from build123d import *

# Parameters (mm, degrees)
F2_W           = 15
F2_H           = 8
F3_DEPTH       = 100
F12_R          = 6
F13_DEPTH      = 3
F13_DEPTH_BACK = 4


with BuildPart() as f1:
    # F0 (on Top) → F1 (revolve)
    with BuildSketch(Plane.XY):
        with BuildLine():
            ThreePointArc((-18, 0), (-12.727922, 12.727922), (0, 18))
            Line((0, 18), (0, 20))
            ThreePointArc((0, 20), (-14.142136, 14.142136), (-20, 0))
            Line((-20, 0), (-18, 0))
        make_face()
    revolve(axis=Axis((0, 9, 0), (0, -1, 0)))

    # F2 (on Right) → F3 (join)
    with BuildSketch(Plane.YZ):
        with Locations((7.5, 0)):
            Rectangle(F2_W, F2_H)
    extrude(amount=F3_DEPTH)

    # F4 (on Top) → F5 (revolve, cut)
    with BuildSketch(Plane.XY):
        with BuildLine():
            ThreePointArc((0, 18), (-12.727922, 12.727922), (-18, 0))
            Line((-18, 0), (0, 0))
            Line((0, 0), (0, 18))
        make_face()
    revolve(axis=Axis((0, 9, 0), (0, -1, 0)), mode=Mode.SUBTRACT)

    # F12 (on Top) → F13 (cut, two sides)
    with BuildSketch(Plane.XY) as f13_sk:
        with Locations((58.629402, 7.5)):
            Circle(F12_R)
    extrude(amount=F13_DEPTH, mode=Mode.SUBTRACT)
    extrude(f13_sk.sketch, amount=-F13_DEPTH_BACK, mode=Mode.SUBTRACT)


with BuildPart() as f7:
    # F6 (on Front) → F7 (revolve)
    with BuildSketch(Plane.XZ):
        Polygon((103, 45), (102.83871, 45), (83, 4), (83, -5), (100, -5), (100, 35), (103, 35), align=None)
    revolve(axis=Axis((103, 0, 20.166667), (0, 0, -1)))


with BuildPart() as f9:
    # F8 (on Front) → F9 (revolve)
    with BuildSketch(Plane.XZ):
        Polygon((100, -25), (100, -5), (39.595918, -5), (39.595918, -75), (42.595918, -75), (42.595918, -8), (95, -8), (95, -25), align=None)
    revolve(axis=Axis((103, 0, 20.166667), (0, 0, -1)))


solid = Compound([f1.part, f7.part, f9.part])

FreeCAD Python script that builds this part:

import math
import FreeCAD as App
import Part
import Sketcher

V = App.Vector
Q = App.Units.Quantity

doc = App.newDocument("Part")
body = doc.addObject("PartDesign::Body", "Body")

# Sketch on XY plane
sketch1 = body.newObject("Sketcher::SketchObject", "Sketch")
sketch1.AttachmentSupport = (doc.getObject("XY_Plane"), [""])
sketch1.MapMode = "FlatFace"
sketch1.addGeometry(Part.ArcOfCircle(Part.Circle(V(0, 0, 0), V(0, 0, 1), 18), math.radians(90), math.radians(180)), False)
sketch1.addGeometry(Part.LineSegment(V(0, 18, 0), V(0, 20, 0)), False)
sketch1.addGeometry(Part.ArcOfCircle(Part.Circle(V(0, 0, 0), V(0, 0, 1), 20), math.radians(90), math.radians(180)), False)
sketch1.addGeometry(Part.LineSegment(V(-20, 0, 0), V(-18, 0, 0)), False)
sketch1.addConstraint(Sketcher.Constraint("Coincident", 0, 1, 1, 1))
sketch1.addConstraint(Sketcher.Constraint("Coincident", 1, 2, 2, 1))
sketch1.addConstraint(Sketcher.Constraint("Coincident", 2, 2, 3, 1))
sketch1.addConstraint(Sketcher.Constraint("Coincident", 3, 2, 0, 2))
sketch1.addConstraint(Sketcher.Constraint("Vertical", 1))
sketch1.addConstraint(Sketcher.Constraint("Horizontal", 3))
sketch1.addConstraint(Sketcher.Constraint("Coincident", 0, 3, -1, 1))
sketch1.addConstraint(Sketcher.Constraint("Coincident", 2, 3, -1, 1))
sketch1.addConstraint(Sketcher.Constraint("PointOnObject", 0, 1, -2))
sketch1.addConstraint(Sketcher.Constraint("PointOnObject", 2, 2, -1))
sketch1.addConstraint(Sketcher.Constraint("Radius", 0, Q("18 mm")))
sketch1.addConstraint(Sketcher.Constraint("Radius", 2, Q("19.999999 mm")))
revolution = body.newObject("PartDesign::Revolution", "Revolution")
revolution.Profile = sketch1
revolution.ReferenceAxis = (sketch1, ["V_Axis"])
revolution.Angle = 360

# Sketch on YZ plane
sketch2 = body.newObject("Sketcher::SketchObject", "Sketch001")
sketch2.AttachmentSupport = (doc.getObject("YZ_Plane"), [""])
sketch2.MapMode = "FlatFace"
sketch2.addGeometry(Part.LineSegment(V(0, 4, 0), V(0, -4, 0)), False)
sketch2.addGeometry(Part.LineSegment(V(0, -4, 0), V(15, -4, 0)), False)
sketch2.addGeometry(Part.LineSegment(V(15, -4, 0), V(15, 4, 0)), False)
sketch2.addGeometry(Part.LineSegment(V(15, 4, 0), V(0, 4, 0)), False)
sketch2.addConstraint(Sketcher.Constraint("Coincident", 0, 2, 1, 1))
sketch2.addConstraint(Sketcher.Constraint("Coincident", 1, 2, 2, 1))
sketch2.addConstraint(Sketcher.Constraint("Coincident", 2, 2, 3, 1))
sketch2.addConstraint(Sketcher.Constraint("Coincident", 3, 2, 0, 1))
sketch2.addConstraint(Sketcher.Constraint("Vertical", 0))
sketch2.addConstraint(Sketcher.Constraint("Horizontal", 1))
sketch2.addConstraint(Sketcher.Constraint("Vertical", 2))
sketch2.addConstraint(Sketcher.Constraint("Horizontal", 3))
sketch2.addConstraint(Sketcher.Constraint("Symmetric", 0, 2, 3, 2, -1, 1))
sketch2.addConstraint(Sketcher.Constraint("DistanceX", 1, 1, 1, 2, Q("15 mm")))
sketch2.addConstraint(Sketcher.Constraint("DistanceY", 0, 2, 0, 1, Q("8 mm")))
pad1 = body.newObject("PartDesign::Pad", "Pad")
pad1.Profile = sketch2
pad1.Length = 100

# Sketch on XY plane
sketch3 = body.newObject("Sketcher::SketchObject", "Sketch002")
sketch3.AttachmentSupport = (doc.getObject("XY_Plane"), [""])
sketch3.MapMode = "FlatFace"
sketch3.addGeometry(Part.ArcOfCircle(Part.Circle(V(0, 0, 0), V(0, 0, 1), 18), math.radians(90), math.radians(180)), False)
sketch3.addGeometry(Part.LineSegment(V(-18, 0, 0), V(0, 0, 0)), False)
sketch3.addGeometry(Part.LineSegment(V(0, 0, 0), V(0, 18, 0)), False)
sketch3.addConstraint(Sketcher.Constraint("Coincident", 0, 2, 1, 1))
sketch3.addConstraint(Sketcher.Constraint("Coincident", 1, 2, 2, 1))
sketch3.addConstraint(Sketcher.Constraint("Coincident", 2, 2, 0, 1))
sketch3.addConstraint(Sketcher.Constraint("Horizontal", 1))
sketch3.addConstraint(Sketcher.Constraint("Vertical", 2))
sketch3.addConstraint(Sketcher.Constraint("Coincident", 0, 3, -1, 1))
sketch3.addConstraint(Sketcher.Constraint("Coincident", 1, 2, -1, 1))
sketch3.addConstraint(Sketcher.Constraint("Radius", 0, Q("18 mm")))
groove = body.newObject("PartDesign::Groove", "Groove")
groove.Profile = sketch3
groove.ReferenceAxis = (sketch3, ["V_Axis"])
groove.Angle = 360

# Sketch on XY plane
sketch4 = body.newObject("Sketcher::SketchObject", "Sketch003")
sketch4.AttachmentSupport = (doc.getObject("XY_Plane"), [""])
sketch4.MapMode = "FlatFace"
sketch4.addGeometry(Part.Circle(V(59, 8, 0), V(0, 0, 1), 6), False)
sketch4.addConstraint(Sketcher.Constraint("Diameter", 0, Q("12 mm")))
sketch4.addConstraint(Sketcher.Constraint("DistanceY", -1, 1, 0, 3, Q("7.5 mm")))
sketch4.addConstraint(Sketcher.Constraint("DistanceX", -1, 1, 0, 3, Q("58.629402 mm")))
pocket1 = body.newObject("PartDesign::Pocket", "Pocket")
pocket1.Profile = sketch4
pocket1.Type = "TwoLengths"
pocket1.Length = 3
pocket1.Length2 = 4
pocket1.Reversed = True
body2 = doc.addObject("PartDesign::Body", "Body001")

# Sketch on XZ plane
sketch5 = body2.newObject("Sketcher::SketchObject", "Sketch004")
sketch5.AttachmentSupport = (doc.getObject("XZ_Plane001"), [""])
sketch5.MapMode = "FlatFace"
sketch5.addGeometry(Part.LineSegment(V(103, 45, 0), V(102.84, 45, 0)), False)
sketch5.addGeometry(Part.LineSegment(V(102.84, 45, 0), V(83, 4, 0)), False)
sketch5.addGeometry(Part.LineSegment(V(83, 4, 0), V(83, -5, 0)), False)
sketch5.addGeometry(Part.LineSegment(V(83, -5, 0), V(100, -5, 0)), False)
sketch5.addGeometry(Part.LineSegment(V(100, -5, 0), V(100, 35, 0)), False)
sketch5.addGeometry(Part.LineSegment(V(100, 35, 0), V(103, 35, 0)), False)
sketch5.addGeometry(Part.LineSegment(V(103, 35, 0), V(103, 45, 0)), False)
sketch5.addGeometry(Part.LineSegment(V(103, 45, 0), V(103, -5, 0)), True)  # axis
sketch5.addConstraint(Sketcher.Constraint("Coincident", 0, 2, 1, 1))
sketch5.addConstraint(Sketcher.Constraint("Coincident", 1, 2, 2, 1))
sketch5.addConstraint(Sketcher.Constraint("Coincident", 2, 2, 3, 1))
sketch5.addConstraint(Sketcher.Constraint("Coincident", 3, 2, 4, 1))
sketch5.addConstraint(Sketcher.Constraint("Coincident", 4, 2, 5, 1))
sketch5.addConstraint(Sketcher.Constraint("Coincident", 5, 2, 6, 1))
sketch5.addConstraint(Sketcher.Constraint("Coincident", 6, 2, 0, 1))
sketch5.addConstraint(Sketcher.Constraint("Horizontal", 0))
sketch5.addConstraint(Sketcher.Constraint("Vertical", 2))
sketch5.addConstraint(Sketcher.Constraint("Horizontal", 3))
sketch5.addConstraint(Sketcher.Constraint("Vertical", 4))
sketch5.addConstraint(Sketcher.Constraint("Horizontal", 5))
sketch5.addConstraint(Sketcher.Constraint("Vertical", 6))
sketch5.addConstraint(Sketcher.Constraint("Vertical", 7))
sketch5.addConstraint(Sketcher.Constraint("Coincident", 7, 1, 6, 2))
sketch5.addConstraint(Sketcher.Constraint("Horizontal", 3, 2, 7, 2))
sketch5.addConstraint(Sketcher.Constraint("DistanceX", 3, 1, 3, 2, Q("17 mm")))
sketch5.addConstraint(Sketcher.Constraint("DistanceX", 5, 1, 5, 2, Q("3 mm")))
sketch5.addConstraint(Sketcher.Constraint("DistanceY", 2, 2, 2, 1, Q("9 mm")))
sketch5.addConstraint(Sketcher.Constraint("DistanceY", 4, 1, 4, 2, Q("40 mm")))
sketch5.addConstraint(Sketcher.Constraint("DistanceY", 6, 1, 6, 2, Q("10 mm")))
sketch5.addConstraint(Sketcher.Constraint("DistanceY", -1, 1, 0, 2, Q("45 mm")))
sketch5.addConstraint(Sketcher.Constraint("DistanceX", -1, 1, 1, 2, Q("83 mm")))
sketch5.addConstraint(Sketcher.Constraint("DistanceX", 0, 2, 0, 1, Q("0.16129 mm")))
revolution2 = body2.newObject("PartDesign::Revolution", "Revolution001")
revolution2.Profile = sketch5
revolution2.ReferenceAxis = (sketch5, ["Axis0"])
revolution2.Angle = 360
body3 = doc.addObject("PartDesign::Body", "Body002")

# Sketch on XZ plane
sketch6 = body3.newObject("Sketcher::SketchObject", "Sketch005")
sketch6.AttachmentSupport = (doc.getObject("XZ_Plane002"), [""])
sketch6.MapMode = "FlatFace"
sketch6.addGeometry(Part.LineSegment(V(100, -25, 0), V(100, -5, 0)), False)
sketch6.addGeometry(Part.LineSegment(V(100, -5, 0), V(39.6, -5, 0)), False)
sketch6.addGeometry(Part.LineSegment(V(39.6, -5, 0), V(39.6, -75, 0)), False)
sketch6.addGeometry(Part.LineSegment(V(39.6, -75, 0), V(42.6, -75, 0)), False)
sketch6.addGeometry(Part.LineSegment(V(42.6, -75, 0), V(42.6, -8, 0)), False)
sketch6.addGeometry(Part.LineSegment(V(42.6, -8, 0), V(95, -8, 0)), False)
sketch6.addGeometry(Part.LineSegment(V(95, -8, 0), V(95, -25, 0)), False)
sketch6.addGeometry(Part.LineSegment(V(95, -25, 0), V(100, -25, 0)), False)
sketch6.addGeometry(Part.LineSegment(V(103, -5, 0), V(103, -75, 0)), True)  # axis
sketch6.addConstraint(Sketcher.Constraint("Coincident", 0, 2, 1, 1))
sketch6.addConstraint(Sketcher.Constraint("Coincident", 1, 2, 2, 1))
sketch6.addConstraint(Sketcher.Constraint("Coincident", 2, 2, 3, 1))
sketch6.addConstraint(Sketcher.Constraint("Coincident", 3, 2, 4, 1))
sketch6.addConstraint(Sketcher.Constraint("Coincident", 4, 2, 5, 1))
sketch6.addConstraint(Sketcher.Constraint("Coincident", 5, 2, 6, 1))
sketch6.addConstraint(Sketcher.Constraint("Coincident", 6, 2, 7, 1))
sketch6.addConstraint(Sketcher.Constraint("Coincident", 7, 2, 0, 1))
sketch6.addConstraint(Sketcher.Constraint("Vertical", 0))
sketch6.addConstraint(Sketcher.Constraint("Horizontal", 1))
sketch6.addConstraint(Sketcher.Constraint("Vertical", 2))
sketch6.addConstraint(Sketcher.Constraint("Horizontal", 3))
sketch6.addConstraint(Sketcher.Constraint("Vertical", 4))
sketch6.addConstraint(Sketcher.Constraint("Horizontal", 5))
sketch6.addConstraint(Sketcher.Constraint("Vertical", 6))
sketch6.addConstraint(Sketcher.Constraint("Horizontal", 7))
sketch6.addConstraint(Sketcher.Constraint("Vertical", 8))
sketch6.addConstraint(Sketcher.Constraint("Horizontal", 1, 2, 8, 1))
sketch6.addConstraint(Sketcher.Constraint("Horizontal", 3, 2, 8, 2))
sketch6.addConstraint(Sketcher.Constraint("DistanceX", 3, 1, 3, 2, Q("3 mm")))
sketch6.addConstraint(Sketcher.Constraint("DistanceX", 7, 1, 7, 2, Q("5 mm")))
sketch6.addConstraint(Sketcher.Constraint("DistanceY", 0, 1, 0, 2, Q("20 mm")))
sketch6.addConstraint(Sketcher.Constraint("DistanceY", 2, 2, 2, 1, Q("70 mm")))
sketch6.addConstraint(Sketcher.Constraint("DistanceY", 4, 1, 4, 2, Q("67 mm")))
sketch6.addConstraint(Sketcher.Constraint("DistanceX", -1, 1, 0, 2, Q("100 mm")))
sketch6.addConstraint(Sketcher.Constraint("DistanceY", 0, 2, -1, 1, Q("5 mm")))
sketch6.addConstraint(Sketcher.Constraint("DistanceX", -1, 1, 8, 1, Q("103 mm")))
sketch6.addConstraint(Sketcher.Constraint("DistanceX", 1, 2, 1, 1, Q("60.404082 mm")))
revolution3 = body3.newObject("PartDesign::Revolution", "Revolution002")
revolution3.Profile = sketch6
revolution3.ReferenceAxis = (sketch6, ["Axis0"])
revolution3.Angle = 360

doc.recompute()
